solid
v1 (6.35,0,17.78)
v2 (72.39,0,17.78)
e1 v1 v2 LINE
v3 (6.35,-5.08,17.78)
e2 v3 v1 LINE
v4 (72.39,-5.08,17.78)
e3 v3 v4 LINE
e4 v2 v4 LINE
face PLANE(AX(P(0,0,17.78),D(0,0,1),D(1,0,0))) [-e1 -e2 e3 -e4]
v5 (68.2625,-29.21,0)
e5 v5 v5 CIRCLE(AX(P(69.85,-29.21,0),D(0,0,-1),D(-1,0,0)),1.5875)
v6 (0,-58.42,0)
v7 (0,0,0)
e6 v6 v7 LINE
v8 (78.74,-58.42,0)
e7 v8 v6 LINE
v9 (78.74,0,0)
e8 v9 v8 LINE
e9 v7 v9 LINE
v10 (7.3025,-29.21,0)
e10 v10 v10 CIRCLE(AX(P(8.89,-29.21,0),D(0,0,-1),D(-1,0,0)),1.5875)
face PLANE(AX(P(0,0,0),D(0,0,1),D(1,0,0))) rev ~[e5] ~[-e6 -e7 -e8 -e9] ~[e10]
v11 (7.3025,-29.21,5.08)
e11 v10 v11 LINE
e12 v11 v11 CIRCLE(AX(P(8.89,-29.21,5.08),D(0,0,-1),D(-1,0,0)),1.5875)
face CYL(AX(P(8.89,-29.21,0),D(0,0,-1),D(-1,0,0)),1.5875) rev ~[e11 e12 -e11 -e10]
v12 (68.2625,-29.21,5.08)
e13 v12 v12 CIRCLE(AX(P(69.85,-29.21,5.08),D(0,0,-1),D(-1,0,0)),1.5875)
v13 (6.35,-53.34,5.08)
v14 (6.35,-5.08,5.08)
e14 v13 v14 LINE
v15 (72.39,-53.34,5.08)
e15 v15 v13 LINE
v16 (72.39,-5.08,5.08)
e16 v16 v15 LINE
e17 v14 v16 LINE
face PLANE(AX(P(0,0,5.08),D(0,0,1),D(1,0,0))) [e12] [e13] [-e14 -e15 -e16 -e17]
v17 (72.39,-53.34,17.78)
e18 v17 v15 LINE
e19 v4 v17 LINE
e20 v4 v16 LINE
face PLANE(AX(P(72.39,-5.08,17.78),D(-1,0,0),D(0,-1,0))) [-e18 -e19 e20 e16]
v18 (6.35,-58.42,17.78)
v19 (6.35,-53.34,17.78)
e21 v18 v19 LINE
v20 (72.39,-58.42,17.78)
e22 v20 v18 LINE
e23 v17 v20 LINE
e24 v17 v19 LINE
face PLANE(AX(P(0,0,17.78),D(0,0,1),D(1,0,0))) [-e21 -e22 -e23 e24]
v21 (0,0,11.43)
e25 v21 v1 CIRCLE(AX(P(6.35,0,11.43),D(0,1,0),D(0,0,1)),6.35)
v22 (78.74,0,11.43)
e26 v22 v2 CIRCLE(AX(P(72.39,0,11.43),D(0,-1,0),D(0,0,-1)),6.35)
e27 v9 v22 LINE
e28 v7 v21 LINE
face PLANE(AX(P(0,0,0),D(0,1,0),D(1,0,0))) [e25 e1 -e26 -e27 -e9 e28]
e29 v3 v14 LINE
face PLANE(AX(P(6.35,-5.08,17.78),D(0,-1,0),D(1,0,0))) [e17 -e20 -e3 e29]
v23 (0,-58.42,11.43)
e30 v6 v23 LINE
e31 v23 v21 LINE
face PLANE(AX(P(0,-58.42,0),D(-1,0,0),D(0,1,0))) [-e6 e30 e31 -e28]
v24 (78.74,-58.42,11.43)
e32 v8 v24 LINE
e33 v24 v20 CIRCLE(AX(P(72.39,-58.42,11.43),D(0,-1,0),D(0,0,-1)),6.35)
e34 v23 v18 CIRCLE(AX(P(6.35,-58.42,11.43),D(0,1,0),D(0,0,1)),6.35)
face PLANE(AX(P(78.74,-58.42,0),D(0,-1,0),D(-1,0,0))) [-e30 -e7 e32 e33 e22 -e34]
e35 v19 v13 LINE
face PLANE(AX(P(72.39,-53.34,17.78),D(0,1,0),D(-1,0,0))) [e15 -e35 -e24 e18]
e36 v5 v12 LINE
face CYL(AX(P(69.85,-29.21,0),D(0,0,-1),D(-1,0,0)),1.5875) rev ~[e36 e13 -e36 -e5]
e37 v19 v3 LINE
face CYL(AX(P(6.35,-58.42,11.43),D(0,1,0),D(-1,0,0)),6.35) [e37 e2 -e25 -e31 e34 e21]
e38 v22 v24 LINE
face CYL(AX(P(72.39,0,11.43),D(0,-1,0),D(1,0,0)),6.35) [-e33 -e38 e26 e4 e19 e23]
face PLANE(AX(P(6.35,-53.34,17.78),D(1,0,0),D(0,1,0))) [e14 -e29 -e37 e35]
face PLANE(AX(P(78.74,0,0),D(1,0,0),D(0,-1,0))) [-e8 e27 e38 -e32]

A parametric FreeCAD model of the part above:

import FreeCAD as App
import Part
import Sketcher
from FreeCAD import Vector
Q = App.Units.Quantity


def edges_at(feature, points):
    """Names of the edges that pass closest to the given points."""
    edges = feature.Shape.Edges
    near = lambda p: min(range(len(edges)), key=lambda i: edges[i].distToShape(Part.Vertex(*p))[0])
    return sorted({f"Edge{near(p) + 1}" for p in points})

doc = App.newDocument("Part")
body = doc.addObject("PartDesign::Body", "Body")

# Sketch on XY plane
sketch1 = doc.addObject("Sketcher::SketchObject", "Sketch")
body.addObject(sketch1)
sketch1.AttachmentSupport = (doc.XY_Plane, [""])
sketch1.MapMode = "FlatFace"
sketch1.addGeometry([
    Part.LineSegment(Vector(78.74, 0, 0), Vector(0, 0, 0)),
    Part.LineSegment(Vector(0, 0, 0), Vector(0, -58.42, 0)),
    Part.LineSegment(Vector(0, -58.42, 0), Vector(78.74, -58.42, 0)),
    Part.LineSegment(Vector(78.74, -58.42, 0), Vector(78.74, 0, 0)),
], False)
sketch1.addConstraint([
    Sketcher.Constraint("Coincident", 0, 2, 1, 1),
    Sketcher.Constraint("Coincident", 1, 2, 2, 1),
    Sketcher.Constraint("Coincident", 2, 2, 3, 1),
    Sketcher.Constraint("Coincident", 3, 2, 0, 1),
    Sketcher.Constraint("Horizontal", 0),
    Sketcher.Constraint("Vertical", 1),
    Sketcher.Constraint("Horizontal", 2),
    Sketcher.Constraint("Vertical", 3),
    Sketcher.Constraint("Coincident", 0, 2, -1, 1),
    Sketcher.Constraint("DistanceX", 0, 2, 0, 1, Q("3.1 in")),
    Sketcher.Constraint("DistanceY", 1, 2, 1, 1, Q("2.3 in")),
])
pad1 = doc.addObject("PartDesign::Pad", "Pad")
body.addObject(pad1)
pad1.Profile = sketch1
pad1.Length = Q("0.7 in")
doc.recompute()

fillet = doc.addObject("PartDesign::Fillet", "Fillet")
body.addObject(fillet)
fillet.Base = (pad1, edges_at(pad1, [(78.74, -29.21, 17.78), (0, -29.21, 17.78)]))
fillet.Radius = Q("0.25 in")

# Sketch on XY plane
sketch2 = doc.addObject("Sketcher::SketchObject", "Sketch001")
body.addObject(sketch2)
sketch2.AttachmentSupport = (doc.XY_Plane, [""])
sketch2.MapMode = "FlatFace"
sketch2.addGeometry([
    Part.Circle(Vector(69.85, -29.21, 0), Vector(0, 0, 1), 1.5875),
    Part.Circle(Vector(8.89, -29.21, 0), Vector(0, 0, 1), 1.5875),
], False)
sketch2.addConstraint([
    Sketcher.Constraint("Equal", 0, 1),
    Sketcher.Constraint("Horizontal", 0, 3, 1, 3),
    Sketcher.Constraint("Diameter", 0, Q("0.125 in")),
    Sketcher.Constraint("DistanceY", 0, 3, -1, 1, Q("1.15 in")),
    Sketcher.Constraint("DistanceX", -1, 1, 1, 3, Q("0.35 in")),
    Sketcher.Constraint("DistanceX", 1, 3, 0, 3, Q("2.4 in")),
])
pocket1 = doc.addObject("PartDesign::Pocket", "Pocket")
body.addObject(pocket1)
pocket1.Profile = sketch2
pocket1.Length = Q("1 in")
pocket1.Reversed = True

# Sketch on XY plane
sketch3 = doc.addObject("Sketcher::SketchObject", "Sketch002")
body.addObject(sketch3)
sketch3.AttachmentSupport = (doc.XY_Plane, [""])
sketch3.MapMode = "FlatFace"
sketch3.AttachmentOffset = App.Placement(Vector(0, 0, 0.7 * 25.4), App.Rotation())
sketch3.addGeometry([
    Part.LineSegment(Vector(6.35, -5.08, 0), Vector(6.35, -53.34, 0)),
    Part.LineSegment(Vector(6.35, -53.34, 0), Vector(72.39, -53.34, 0)),
    Part.LineSegment(Vector(72.39, -53.34, 0), Vector(72.39, -5.08, 0)),
    Part.LineSegment(Vector(72.39, -5.08, 0), Vector(6.35, -5.08, 0)),
], False)
sketch3.addConstraint([
    Sketcher.Constraint("Coincident", 0, 2, 1, 1),
    Sketcher.Constraint("Coincident", 1, 2, 2, 1),
    Sketcher.Constraint("Coincident", 2, 2, 3, 1),
    Sketcher.Constraint("Coincident", 3, 2, 0, 1),
    Sketcher.Constraint("Vertical", 0),
    Sketcher.Constraint("Horizontal", 1),
    Sketcher.Constraint("Vertical", 2),
    Sketcher.Constraint("Horizontal", 3),
    Sketcher.Constraint("DistanceY", 2, 2, -1, 1, Q("0.2 in")),
    Sketcher.Constraint("DistanceX", 1, 1, 1, 2, Q("2.6 in")),
    Sketcher.Constraint("DistanceY", 0, 2, 0, 1, Q("1.9 in")),
    Sketcher.Constraint("DistanceX", -1, 1, 0, 2, Q("0.25 in")),
])
pocket2 = doc.addObject("PartDesign::Pocket", "Pocket001")
body.addObject(pocket2)
pocket2.Profile = sketch3
pocket2.Length = Q("0.5 in")

doc.recompute()
